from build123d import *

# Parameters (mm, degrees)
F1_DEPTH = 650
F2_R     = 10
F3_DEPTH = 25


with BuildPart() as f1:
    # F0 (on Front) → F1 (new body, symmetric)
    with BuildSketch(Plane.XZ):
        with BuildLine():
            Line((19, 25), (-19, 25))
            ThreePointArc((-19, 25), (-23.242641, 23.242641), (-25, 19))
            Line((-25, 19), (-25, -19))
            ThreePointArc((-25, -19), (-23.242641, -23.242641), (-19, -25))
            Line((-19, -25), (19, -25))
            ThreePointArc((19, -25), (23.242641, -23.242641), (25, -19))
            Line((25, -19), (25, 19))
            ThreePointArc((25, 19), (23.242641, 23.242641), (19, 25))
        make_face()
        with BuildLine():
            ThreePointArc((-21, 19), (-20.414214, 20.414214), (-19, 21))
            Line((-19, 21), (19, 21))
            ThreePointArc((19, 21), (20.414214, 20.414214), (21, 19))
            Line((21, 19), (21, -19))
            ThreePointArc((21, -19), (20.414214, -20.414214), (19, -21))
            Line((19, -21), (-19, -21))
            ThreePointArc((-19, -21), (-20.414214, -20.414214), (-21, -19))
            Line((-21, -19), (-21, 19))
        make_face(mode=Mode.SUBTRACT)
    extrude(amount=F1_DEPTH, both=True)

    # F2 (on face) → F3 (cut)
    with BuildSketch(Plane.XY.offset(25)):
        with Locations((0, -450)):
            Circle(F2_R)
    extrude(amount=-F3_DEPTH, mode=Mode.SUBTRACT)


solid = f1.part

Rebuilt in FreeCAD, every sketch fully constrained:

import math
import FreeCAD as App
import Part
import Sketcher

V = App.Vector
Q = App.Units.Quantity

doc = App.newDocument("Part")
body = doc.addObject("PartDesign::Body", "Body")

sketch1 = doc.addObject("Sketcher::SketchObject", "Sketch")
body.addObject(sketch1)
sketch1.AttachmentSupport = (doc.XZ_Plane, [""])
sketch1.MapMode = "FlatFace"
sketch1.addGeometry(Part.LineSegment(V(19, 25, 0), V(-19, 25, 0)), False)
sketch1.addGeometry(Part.ArcOfCircle(Part.Circle(V(-19, 19, 0), V(0, 0, 1), 6), math.radians(90), math.radians(180)), False)
sketch1.addGeometry(Part.LineSegment(V(-25, 19, 0), V(-25, -19, 0)), False)
sketch1.addGeometry(Part.ArcOfCircle(Part.Circle(V(-19, -19, 0), V(0, 0, 1), 6), math.radians(180), math.radians(270)), False)
sketch1.addGeometry(Part.LineSegment(V(-19, -25, 0), V(19, -25, 0)), False)
sketch1.addGeometry(Part.ArcOfCircle(Part.Circle(V(19, -19, 0), V(0, 0, 1), 6), math.radians(-90), math.radians(0)), False)
sketch1.addGeometry(Part.LineSegment(V(25, -19, 0), V(25, 19, 0)), False)
sketch1.addGeometry(Part.ArcOfCircle(Part.Circle(V(19, 19, 0), V(0, 0, 1), 6), math.radians(0), math.radians(90)), False)
sketch1.addGeometry(Part.LineSegment(V(-21, -19, 0), V(-21, 19, 0)), False)
sketch1.addGeometry(Part.ArcOfCircle(Part.Circle(V(-19, 19, 0), V(0, 0, 1), 2), math.radians(90), math.radians(180)), False)
sketch1.addGeometry(Part.LineSegment(V(-19, 21, 0), V(19, 21, 0)), False)
sketch1.addGeometry(Part.ArcOfCircle(Part.Circle(V(19, 19, 0), V(0, 0, 1), 2), math.radians(0), math.radians(90)), False)
sketch1.addGeometry(Part.LineSegment(V(21, 19, 0), V(21, -19, 0)), False)
sketch1.addGeometry(Part.ArcOfCircle(Part.Circle(V(19, -19, 0), V(0, 0, 1), 2), math.radians(-90), math.radians(0)), False)
sketch1.addGeometry(Part.LineSegment(V(19, -21, 0), V(-19, -21, 0)), False)
sketch1.addGeometry(Part.ArcOfCircle(Part.Circle(V(-19, -19, 0), V(0, 0, 1), 2), math.radians(180), math.radians(270)), False)
sketch1.addConstraint(Sketcher.Constraint("Tangent", 0, 2, 1, 1))
sketch1.addConstraint(Sketcher.Constraint("Tangent", 1, 2, 2, 1))
sketch1.addConstraint(Sketcher.Constraint("Tangent", 2, 2, 3, 1))
sketch1.addConstraint(Sketcher.Constraint("Tangent", 3, 2, 4, 1))
sketch1.addConstraint(Sketcher.Constraint("Tangent", 4, 2, 5, 1))
sketch1.addConstraint(Sketcher.Constraint("Tangent", 5, 2, 6, 1))
sketch1.addConstraint(Sketcher.Constraint("Tangent", 6, 2, 7, 1))
sketch1.addConstraint(Sketcher.Constraint("Tangent", 7, 2, 0, 1))
sketch1.addConstraint(Sketcher.Constraint("Tangent", 8, 2, 9, 2))
sketch1.addConstraint(Sketcher.Constraint("Tangent", 9, 1, 10, 1))
sketch1.addConstraint(Sketcher.Constraint("Tangent", 10, 2, 11, 2))
sketch1.addConstraint(Sketcher.Constraint("Tangent", 11, 1, 12, 1))
sketch1.addConstraint(Sketcher.Constraint("Tangent", 12, 2, 13, 2))
sketch1.addConstraint(Sketcher.Constraint("Tangent", 13, 1, 14, 1))
sketch1.addConstraint(Sketcher.Constraint("Tangent", 14, 2, 15, 2))
sketch1.addConstraint(Sketcher.Constraint("Tangent", 15, 1, 8, 1))
sketch1.addConstraint(Sketcher.Constraint("Horizontal", 0))
sketch1.addConstraint(Sketcher.Constraint("Vertical", 2))
sketch1.addConstraint(Sketcher.Constraint("Horizontal", 4))
sketch1.addConstraint(Sketcher.Constraint("Vertical", 6))
sketch1.addConstraint(Sketcher.Constraint("Vertical", 8))
sketch1.addConstraint(Sketcher.Constraint("Horizontal", 10))
sketch1.addConstraint(Sketcher.Constraint("Vertical", 12))
sketch1.addConstraint(Sketcher.Constraint("Horizontal", 14))
sketch1.addConstraint(Sketcher.Constraint("Coincident", 9, 3, 1, 3))
sketch1.addConstraint(Sketcher.Constraint("Coincident", 11, 3, 7, 3))
sketch1.addConstraint(Sketcher.Constraint("Coincident", 13, 3, 5, 3))
sketch1.addConstraint(Sketcher.Constraint("Equal", 1, 3))
sketch1.addConstraint(Sketcher.Constraint("Equal", 3, 5))
sketch1.addConstraint(Sketcher.Constraint("Equal", 5, 7))
sketch1.addConstraint(Sketcher.Constraint("Equal", 13, 15))
sketch1.addConstraint(Sketcher.Constraint("Symmetric", 1, 3, 5, 3, -1, 1))
sketch1.addConstraint(Sketcher.Constraint("Equal", 14, 2))
sketch1.addConstraint(Sketcher.Constraint("Radius", 1, Q("5.999999 mm")))
sketch1.addConstraint(Sketcher.Constraint("Radius", 9, Q("1.999999 mm")))
sketch1.addConstraint(Sketcher.Constraint("DistanceX", 0, 2, 0, 1, Q("38 mm")))
pad1 = doc.addObject("PartDesign::Pad", "Pad")
body.addObject(pad1)
pad1.Profile = sketch1
pad1.Length = 1300
pad1.Midplane = True

sketch2 = doc.addObject("Sketcher::SketchObject", "Sketch001")
body.addObject(sketch2)
sketch2.AttachmentSupport = (doc.XY_Plane, [""])
sketch2.MapMode = "FlatFace"
sketch2.AttachmentOffset = App.Placement(V(0, 0, 25), App.Rotation())
sketch2.addGeometry(Part.Circle(V(0, -450, 0), V(0, 0, 1), 10), False)
sketch2.addConstraint(Sketcher.Constraint("PointOnObject", 0, 3, -2))
sketch2.addConstraint(Sketcher.Constraint("Diameter", 0, Q("20 mm")))
sketch2.addConstraint(Sketcher.Constraint("DistanceY", 0, 3, -1, 1, Q("450 mm")))
pocket1 = doc.addObject("PartDesign::Pocket", "Pocket")
body.addObject(pocket1)
pocket1.Profile = sketch2
pocket1.Length = 25

doc.recompute()
